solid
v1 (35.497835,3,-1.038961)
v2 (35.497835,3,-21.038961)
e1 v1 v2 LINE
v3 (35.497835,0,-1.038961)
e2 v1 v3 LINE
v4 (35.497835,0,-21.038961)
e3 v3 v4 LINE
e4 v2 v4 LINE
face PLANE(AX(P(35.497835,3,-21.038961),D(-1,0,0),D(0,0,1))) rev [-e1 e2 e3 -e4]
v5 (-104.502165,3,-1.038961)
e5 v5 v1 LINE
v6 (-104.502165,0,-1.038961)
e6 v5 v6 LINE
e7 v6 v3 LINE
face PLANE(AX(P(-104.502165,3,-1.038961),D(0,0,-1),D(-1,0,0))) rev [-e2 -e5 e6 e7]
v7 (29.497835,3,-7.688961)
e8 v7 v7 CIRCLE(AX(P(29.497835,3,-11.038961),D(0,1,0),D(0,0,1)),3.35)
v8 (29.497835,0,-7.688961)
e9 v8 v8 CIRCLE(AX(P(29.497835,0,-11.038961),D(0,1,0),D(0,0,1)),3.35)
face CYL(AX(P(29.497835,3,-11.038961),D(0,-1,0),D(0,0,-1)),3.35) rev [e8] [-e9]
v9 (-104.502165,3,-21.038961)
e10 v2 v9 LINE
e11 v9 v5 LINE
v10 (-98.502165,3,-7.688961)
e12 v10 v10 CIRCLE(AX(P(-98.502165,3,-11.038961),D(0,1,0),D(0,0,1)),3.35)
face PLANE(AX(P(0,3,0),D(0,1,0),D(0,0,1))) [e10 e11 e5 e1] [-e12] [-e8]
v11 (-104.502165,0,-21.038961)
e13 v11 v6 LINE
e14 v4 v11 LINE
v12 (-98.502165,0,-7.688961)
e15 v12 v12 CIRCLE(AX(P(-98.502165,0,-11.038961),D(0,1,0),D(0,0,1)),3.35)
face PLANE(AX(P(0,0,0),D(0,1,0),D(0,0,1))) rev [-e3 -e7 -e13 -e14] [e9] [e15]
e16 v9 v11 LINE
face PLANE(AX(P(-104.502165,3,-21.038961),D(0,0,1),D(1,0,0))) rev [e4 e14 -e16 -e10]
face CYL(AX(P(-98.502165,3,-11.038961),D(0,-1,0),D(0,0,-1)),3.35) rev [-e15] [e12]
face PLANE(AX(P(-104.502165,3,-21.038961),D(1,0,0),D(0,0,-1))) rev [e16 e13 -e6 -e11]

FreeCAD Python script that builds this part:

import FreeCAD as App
import Part
import Sketcher

doc = App.newDocument("Part")
body = doc.addObject("PartDesign::Body", "Body")

# Sketch on XZ plane
sketch1 = doc.addObject("Sketcher::SketchObject", "Sketch")
body.addObject(sketch1)
sketch1.AttachmentSupport = (doc.XZ_Plane, [""])
sketch1.MapMode = "FlatFace"
sketch1.addGeometry([
    Part.LineSegment(App.Vector(-104.5, -21, 0), App.Vector(-104.5, -1, 0)),  # 0
    Part.LineSegment(App.Vector(-104.5, -1, 0), App.Vector(35.5, -1, 0)),  # 1
    Part.LineSegment(App.Vector(35.5, -1, 0), App.Vector(35.5, -21, 0)),  # 2
    Part.LineSegment(App.Vector(35.5, -21, 0), App.Vector(-104.5, -21, 0)),  # 3
    Part.Circle(App.Vector(-98.5, -11, 0), App.Vector(0, 0, 1), 3.4),  # 4
    Part.Circle(App.Vector(29.5, -11, 0), App.Vector(0, 0, 1), 3.4),  # 5
], False)
sketch1.addConstraint([
    Sketcher.Constraint("Coincident", 0, 2, 1, 1),
    Sketcher.Constraint("Coincident", 1, 2, 2, 1),
    Sketcher.Constraint("Coincident", 2, 2, 3, 1),
    Sketcher.Constraint("Coincident", 3, 2, 0, 1),
    Sketcher.Constraint("Vertical", 0),
    Sketcher.Constraint("Horizontal", 1),
    Sketcher.Constraint("Vertical", 2),
    Sketcher.Constraint("Horizontal", 3),
    Sketcher.Constraint("Equal", 4, 5),
    Sketcher.Constraint("Horizontal", 4, 3, 5, 3),
    Sketcher.Constraint("Diameter", 4, 6.7),
    Sketcher.Constraint("DistanceX", 1, 1, 1, 2, 140.0),
    Sketcher.Constraint("DistanceY", 0, 1, 0, 2, 20.0),
    Sketcher.Constraint("DistanceX", 4, 3, 5, 3, 128.0),
    Sketcher.Constraint("DistanceX", 0, 2, 4, 3, 6.0),
    Sketcher.Constraint("DistanceY", 4, 3, 0, 2, 10.0),
    Sketcher.Constraint("DistanceY", 4, 3, -1, 1, 11.038961),
    Sketcher.Constraint("DistanceX", 4, 3, -1, 1, 98.502165),
])
pad1 = doc.addObject("PartDesign::Pad", "Pad")
body.addObject(pad1)
pad1.Profile = sketch1
pad1.Length = 3
pad1.Reversed = True

doc.recompute()
